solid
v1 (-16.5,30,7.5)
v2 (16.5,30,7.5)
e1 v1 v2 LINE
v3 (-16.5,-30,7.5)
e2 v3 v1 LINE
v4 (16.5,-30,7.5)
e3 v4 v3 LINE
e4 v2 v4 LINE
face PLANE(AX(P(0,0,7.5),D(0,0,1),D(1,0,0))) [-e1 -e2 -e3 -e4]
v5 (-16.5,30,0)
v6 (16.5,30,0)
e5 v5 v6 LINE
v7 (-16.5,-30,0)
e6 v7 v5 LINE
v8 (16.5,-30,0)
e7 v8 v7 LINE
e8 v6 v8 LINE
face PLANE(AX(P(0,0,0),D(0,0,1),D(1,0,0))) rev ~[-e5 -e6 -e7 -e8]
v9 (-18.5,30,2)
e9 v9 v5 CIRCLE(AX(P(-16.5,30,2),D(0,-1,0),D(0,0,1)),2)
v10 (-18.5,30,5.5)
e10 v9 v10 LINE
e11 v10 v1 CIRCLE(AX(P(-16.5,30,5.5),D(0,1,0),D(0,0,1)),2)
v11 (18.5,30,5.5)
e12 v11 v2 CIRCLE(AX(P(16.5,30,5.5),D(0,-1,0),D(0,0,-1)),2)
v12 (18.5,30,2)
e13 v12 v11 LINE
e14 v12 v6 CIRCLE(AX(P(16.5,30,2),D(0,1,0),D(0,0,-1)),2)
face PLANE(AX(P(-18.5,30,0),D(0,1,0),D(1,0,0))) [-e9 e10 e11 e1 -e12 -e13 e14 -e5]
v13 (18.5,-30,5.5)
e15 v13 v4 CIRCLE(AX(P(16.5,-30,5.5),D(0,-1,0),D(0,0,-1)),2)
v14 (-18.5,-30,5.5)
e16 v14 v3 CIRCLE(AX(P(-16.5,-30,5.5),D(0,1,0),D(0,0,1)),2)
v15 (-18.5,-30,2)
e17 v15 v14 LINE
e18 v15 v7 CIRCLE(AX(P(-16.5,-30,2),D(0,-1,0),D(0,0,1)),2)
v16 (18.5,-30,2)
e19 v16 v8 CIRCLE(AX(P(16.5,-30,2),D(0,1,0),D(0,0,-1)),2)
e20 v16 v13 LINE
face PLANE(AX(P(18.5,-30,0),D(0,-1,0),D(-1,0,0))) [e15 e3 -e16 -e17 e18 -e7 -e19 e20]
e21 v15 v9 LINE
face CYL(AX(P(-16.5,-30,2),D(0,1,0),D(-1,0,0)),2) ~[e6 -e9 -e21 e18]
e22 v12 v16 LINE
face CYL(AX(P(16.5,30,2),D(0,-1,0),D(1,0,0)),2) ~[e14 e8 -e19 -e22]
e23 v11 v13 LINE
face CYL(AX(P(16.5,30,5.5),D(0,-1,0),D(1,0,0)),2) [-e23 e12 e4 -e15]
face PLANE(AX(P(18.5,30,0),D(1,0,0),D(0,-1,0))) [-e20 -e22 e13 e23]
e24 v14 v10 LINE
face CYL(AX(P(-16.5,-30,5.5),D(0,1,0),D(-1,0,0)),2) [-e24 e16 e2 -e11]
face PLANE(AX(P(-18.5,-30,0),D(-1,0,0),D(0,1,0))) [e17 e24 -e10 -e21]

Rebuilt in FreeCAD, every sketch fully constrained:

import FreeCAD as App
import Part
import Sketcher
from FreeCAD import Vector


def edges_at(feature, points):
    """Names of the edges that pass closest to the given points."""
    edges = feature.Shape.Edges
    near = lambda p: min(range(len(edges)), key=lambda i: edges[i].distToShape(Part.Vertex(*p))[0])
    return sorted({f"Edge{near(p) + 1}" for p in points})


def add_polygon(sketch, points):
    """Adds a closed chain of lines whose ends are joined by coincident constraints."""
    first, n = sketch.GeometryCount, len(points)
    for a, b in zip(points, points[1:] + points[:1]):
        sketch.addGeometry(Part.LineSegment(App.Vector(*a, 0), App.Vector(*b, 0)), False)
    for i in range(n):
        sketch.addConstraint(Sketcher.Constraint("Coincident", first + i, 2, first + (i + 1) % n, 1))

doc = App.newDocument("Part")
body = doc.addObject("PartDesign::Body", "Body")

# Sketch on XY plane
sketch1 = body.newObject("Sketcher::SketchObject", "Sketch")
sketch1.AttachmentSupport = (doc.getObject("XY_Plane"), [""])
sketch1.MapMode = "FlatFace"
add_polygon(sketch1, [(-18, -30), (18, -30), (18, 30), (-18, 30)])  # lines 0-3
sketch1.addConstraint([
    Sketcher.Constraint("Horizontal", 0),
    Sketcher.Constraint("Vertical", 1),
    Sketcher.Constraint("Horizontal", 2),
    Sketcher.Constraint("Vertical", 3),
    Sketcher.Constraint("Symmetric", 0, 2, 2, 2, -1, 1),
    Sketcher.Constraint("DistanceX", 0, 1, 0, 2, 37.0),
    Sketcher.Constraint("DistanceY", 1, 1, 1, 2, 60.0),
])
pad1 = body.newObject("PartDesign::Pad", "Pad")
pad1.Profile = sketch1
pad1.Length = 7.5
doc.recompute()

fillet = body.newObject("PartDesign::Fillet", "Fillet")
fillet.Base = (pad1, edges_at(pad1, [
    (18.5, 0, 7.5),
    (18.5, 0, 0),
    (-18.5, 0, 7.5),
    (-18.5, 0, 0),
]))
fillet.Radius = 2

doc.recompute()
